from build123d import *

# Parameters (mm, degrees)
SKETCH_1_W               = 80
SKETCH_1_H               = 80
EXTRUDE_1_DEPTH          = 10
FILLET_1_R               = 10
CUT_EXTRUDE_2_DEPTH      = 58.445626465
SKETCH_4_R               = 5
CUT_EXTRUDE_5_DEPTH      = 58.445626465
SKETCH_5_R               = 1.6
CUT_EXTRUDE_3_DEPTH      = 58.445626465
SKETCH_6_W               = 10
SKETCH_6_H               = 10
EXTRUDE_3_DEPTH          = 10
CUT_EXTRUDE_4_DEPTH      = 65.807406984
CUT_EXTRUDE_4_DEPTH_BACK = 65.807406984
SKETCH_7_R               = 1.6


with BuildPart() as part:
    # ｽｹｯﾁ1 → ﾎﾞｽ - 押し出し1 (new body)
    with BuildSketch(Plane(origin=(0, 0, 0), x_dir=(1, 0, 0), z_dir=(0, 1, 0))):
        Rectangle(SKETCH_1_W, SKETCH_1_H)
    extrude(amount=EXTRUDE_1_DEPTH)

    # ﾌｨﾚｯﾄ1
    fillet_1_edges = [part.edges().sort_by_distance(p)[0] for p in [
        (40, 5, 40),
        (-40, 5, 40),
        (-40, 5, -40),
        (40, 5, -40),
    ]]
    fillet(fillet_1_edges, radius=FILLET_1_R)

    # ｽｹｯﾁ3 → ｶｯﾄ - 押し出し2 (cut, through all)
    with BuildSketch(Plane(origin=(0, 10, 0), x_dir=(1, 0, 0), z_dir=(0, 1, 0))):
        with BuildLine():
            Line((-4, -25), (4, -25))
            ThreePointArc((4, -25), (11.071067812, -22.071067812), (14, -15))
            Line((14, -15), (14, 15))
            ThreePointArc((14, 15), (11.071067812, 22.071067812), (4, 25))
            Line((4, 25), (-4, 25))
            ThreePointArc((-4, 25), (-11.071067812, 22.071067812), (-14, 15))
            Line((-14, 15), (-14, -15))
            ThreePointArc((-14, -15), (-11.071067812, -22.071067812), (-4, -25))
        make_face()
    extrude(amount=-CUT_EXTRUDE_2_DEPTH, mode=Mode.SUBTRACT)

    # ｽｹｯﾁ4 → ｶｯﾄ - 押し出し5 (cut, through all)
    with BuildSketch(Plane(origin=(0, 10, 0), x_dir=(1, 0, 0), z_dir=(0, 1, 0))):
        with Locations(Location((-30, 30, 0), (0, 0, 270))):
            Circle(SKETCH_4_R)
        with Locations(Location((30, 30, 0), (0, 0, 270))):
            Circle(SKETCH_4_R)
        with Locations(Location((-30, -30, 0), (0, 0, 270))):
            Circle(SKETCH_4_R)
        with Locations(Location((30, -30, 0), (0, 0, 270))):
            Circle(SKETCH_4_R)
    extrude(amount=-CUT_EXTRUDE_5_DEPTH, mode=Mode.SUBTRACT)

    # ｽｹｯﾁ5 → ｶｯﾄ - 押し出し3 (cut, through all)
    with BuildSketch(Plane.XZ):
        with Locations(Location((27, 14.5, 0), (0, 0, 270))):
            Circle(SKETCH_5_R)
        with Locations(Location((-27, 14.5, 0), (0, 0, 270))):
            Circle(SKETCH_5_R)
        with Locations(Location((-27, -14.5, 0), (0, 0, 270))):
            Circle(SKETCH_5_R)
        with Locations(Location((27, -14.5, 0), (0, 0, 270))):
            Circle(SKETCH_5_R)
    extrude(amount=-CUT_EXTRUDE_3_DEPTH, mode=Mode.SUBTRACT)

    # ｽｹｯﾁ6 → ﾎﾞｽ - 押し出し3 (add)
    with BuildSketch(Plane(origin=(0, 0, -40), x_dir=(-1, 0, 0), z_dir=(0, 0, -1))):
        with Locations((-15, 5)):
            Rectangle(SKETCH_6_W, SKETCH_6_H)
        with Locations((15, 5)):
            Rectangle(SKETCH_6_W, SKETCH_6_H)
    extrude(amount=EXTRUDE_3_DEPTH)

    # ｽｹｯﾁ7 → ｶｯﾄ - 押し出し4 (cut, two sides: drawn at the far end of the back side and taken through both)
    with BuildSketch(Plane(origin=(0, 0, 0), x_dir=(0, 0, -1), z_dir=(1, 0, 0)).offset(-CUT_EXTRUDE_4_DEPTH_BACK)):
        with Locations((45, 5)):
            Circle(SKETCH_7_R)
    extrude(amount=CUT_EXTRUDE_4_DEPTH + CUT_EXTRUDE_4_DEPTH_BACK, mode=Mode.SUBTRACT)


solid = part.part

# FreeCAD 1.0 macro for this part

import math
import FreeCAD as App
import Part
import Sketcher


def edges_at(feature, points):
    """Names of the edges that pass closest to the given points."""
    edges = feature.Shape.Edges
    near = lambda p: min(range(len(edges)), key=lambda i: edges[i].distToShape(Part.Vertex(*p))[0])
    return sorted({f"Edge{near(p) + 1}" for p in points})


def add_polygon(sketch, points):
    """Adds a closed chain of lines whose ends are joined by coincident constraints."""
    first, n = sketch.GeometryCount, len(points)
    for a, b in zip(points, points[1:] + points[:1]):
        sketch.addGeometry(Part.LineSegment(App.Vector(*a, 0), App.Vector(*b, 0)), False)
    for i in range(n):
        sketch.addConstraint(Sketcher.Constraint("Coincident", first + i, 2, first + (i + 1) % n, 1))

doc = App.newDocument("Part")
body = doc.addObject("PartDesign::Body", "Body")

sketch1 = body.newObject("Sketcher::SketchObject", "Sketch")
sketch1.AttachmentSupport = (doc.getObject("XZ_Plane"), [""])
sketch1.MapMode = "FlatFace"
add_polygon(sketch1, [(-40, -40), (-40, 40), (40, 40), (40, -40)])
sketch1.addConstraint([
    Sketcher.Constraint("Vertical", 0),
    Sketcher.Constraint("Horizontal", 1),
    Sketcher.Constraint("Vertical", 2),
    Sketcher.Constraint("Horizontal", 3),
    Sketcher.Constraint("Symmetric", 0, 2, 2, 2, -1, 1),
    Sketcher.Constraint("Equal", 3, 0),
    Sketcher.Constraint("DistanceX", 1, 1, 1, 2, 80.0),
])
pad1 = body.newObject("PartDesign::Pad", "Pad")
pad1.Profile = sketch1
pad1.Length = 10
pad1.Reversed = True
doc.recompute()

fillet = body.newObject("PartDesign::Fillet", "Fillet")
fillet.Base = (pad1, edges_at(pad1, [
    (40, 5, 40),
    (-40, 5, 40),
    (-40, 5, -40),
    (40, 5, -40),
]))
fillet.Radius = 10

sketch2 = body.newObject("Sketcher::SketchObject", "Sketch001")
sketch2.AttachmentSupport = (doc.getObject("XZ_Plane"), [""])
sketch2.MapMode = "FlatFace"
sketch2.AttachmentOffset = App.Placement(App.Vector(0, 0, -10), App.Rotation())
sketch2.addGeometry([
    Part.LineSegment(App.Vector(-4, 25, 0), App.Vector(4, 25, 0)),
    Part.ArcOfCircle(Part.Circle(App.Vector(4, 15, 0), App.Vector(0, 0, 1), 10), math.radians(0), math.radians(90)),
    Part.LineSegment(App.Vector(14, 15, 0), App.Vector(14, -15, 0)),
    Part.ArcOfCircle(Part.Circle(App.Vector(4, -15, 0), App.Vector(0, 0, 1), 10), math.radians(-90), math.radians(0)),
    Part.LineSegment(App.Vector(4, -25, 0), App.Vector(-4, -25, 0)),
    Part.ArcOfCircle(Part.Circle(App.Vector(-4, -15, 0), App.Vector(0, 0, 1), 10), math.radians(180), math.radians(270)),
    Part.LineSegment(App.Vector(-14, -15, 0), App.Vector(-14, 15, 0)),
    Part.ArcOfCircle(Part.Circle(App.Vector(-4, 15, 0), App.Vector(0, 0, 1), 10), math.radians(90), math.radians(180)),
], False)
sketch2.addConstraint([
    Sketcher.Constraint("Tangent", 0, 2, 1, 2),
    Sketcher.Constraint("Tangent", 1, 1, 2, 1),
    Sketcher.Constraint("Tangent", 2, 2, 3, 2),
    Sketcher.Constraint("Tangent", 3, 1, 4, 1),
    Sketcher.Constraint("Tangent", 4, 2, 5, 2),
    Sketcher.Constraint("Tangent", 5, 1, 6, 1),
    Sketcher.Constraint("Tangent", 6, 2, 7, 2),
    Sketcher.Constraint("Tangent", 7, 1, 0, 1),
    Sketcher.Constraint("Horizontal", 0),
    Sketcher.Constraint("Vertical", 2),
    Sketcher.Constraint("Horizontal", 4),
    Sketcher.Constraint("Vertical", 6),
    Sketcher.Constraint("Equal", 1, 3),
    Sketcher.Constraint("Equal", 3, 5),
    Sketcher.Constraint("Equal", 5, 7),
    Sketcher.Constraint("Symmetric", 1, 3, 5, 3, -1, 1),
    Sketcher.Constraint("Radius", 1, 10.0),
    Sketcher.Constraint("DistanceX", 0, 1, 0, 2, 8.0),
    Sketcher.Constraint("DistanceY", 2, 2, 2, 1, 30.0),
])
pocket1 = body.newObject("PartDesign::Pocket", "Pocket")
pocket1.Profile = sketch2
pocket1.Type = "ThroughAll"
pocket1.Reversed = True

sketch3 = body.newObject("Sketcher::SketchObject", "Sketch002")
sketch3.AttachmentSupport = (doc.getObject("XZ_Plane"), [""])
sketch3.MapMode = "FlatFace"
sketch3.AttachmentOffset = App.Placement(App.Vector(0, 0, -10), App.Rotation())
sketch3.addGeometry([
    Part.Circle(App.Vector(-30, -30, 0), App.Vector(0, 0, 1), 5),
    Part.Circle(App.Vector(30, -30, 0), App.Vector(0, 0, 1), 5),
    Part.Circle(App.Vector(-30, 30, 0), App.Vector(0, 0, 1), 5),
    Part.Circle(App.Vector(30, 30, 0), App.Vector(0, 0, 1), 5),
], False)
sketch3.addConstraint([
    Sketcher.Constraint("Equal", 0, 1),
    Sketcher.Constraint("Equal", 1, 2),
    Sketcher.Constraint("Equal", 2, 3),
    Sketcher.Constraint("Symmetric", 1, 3, 2, 3, -1, 1),
    Sketcher.Constraint("Symmetric", 0, 3, 3, 3, -1, 1),
    Sketcher.Constraint("Symmetric", 0, 3, 1, 3, -2),
    Sketcher.Constraint("Diameter", 0, 10.0),
    Sketcher.Constraint("DistanceX", 0, 3, -1, 1, 30.0),
    Sketcher.Constraint("DistanceY", 0, 3, -1, 1, 30.0),
])
pocket2 = body.newObject("PartDesign::Pocket", "Pocket001")
pocket2.Profile = sketch3
pocket2.Type = "ThroughAll"
pocket2.Reversed = True

sketch4 = body.newObject("Sketcher::SketchObject", "Sketch003")
sketch4.AttachmentSupport = (doc.getObject("XZ_Plane"), [""])
sketch4.MapMode = "FlatFace"
sketch4.addGeometry([
    Part.Circle(App.Vector(27, 14.5, 0), App.Vector(0, 0, 1), 1.6),
    Part.Circle(App.Vector(-27, 14.5, 0), App.Vector(0, 0, 1), 1.6),
    Part.Circle(App.Vector(-27, -14.5, 0), App.Vector(0, 0, 1), 1.6),
    Part.Circle(App.Vector(27, -14.5, 0), App.Vector(0, 0, 1), 1.6),
], False)
sketch4.addConstraint([
    Sketcher.Constraint("Equal", 0, 1),
    Sketcher.Constraint("Equal", 1, 2),
    Sketcher.Constraint("Equal", 2, 3),
    Sketcher.Constraint("Symmetric", 0, 3, 2, 3, -1, 1),
    Sketcher.Constraint("Symmetric", 1, 3, 3, 3, -1, 1),
    Sketcher.Constraint("Symmetric", 0, 3, 1, 3, -2),
    Sketcher.Constraint("Diameter", 0, 3.2),
    Sketcher.Constraint("DistanceX", -1, 1, 0, 3, 27.0),
    Sketcher.Constraint("DistanceY", 2, 3, 1, 3, 29.0),
])
pocket3 = body.newObject("PartDesign::Pocket", "Pocket002")
pocket3.Profile = sketch4
pocket3.Type = "ThroughAll"

sketch5 = body.newObject("Sketcher::SketchObject", "Sketch004")
sketch5.AttachmentSupport = (doc.getObject("XY_Plane"), [""])
sketch5.MapMode = "FlatFace"
sketch5.AttachmentOffset = App.Placement(App.Vector(0, 0, -40), App.Rotation())
add_polygon(sketch5, [(20, 10), (20, 0), (10, 0), (10, 10)])
add_polygon(sketch5, [(-10, 10), (-10, 0), (-20, 0), (-20, 10)])
sketch5.addConstraint([
    Sketcher.Constraint("Vertical", 0),
    Sketcher.Constraint("Horizontal", 1),
    Sketcher.Constraint("Vertical", 2),
    Sketcher.Constraint("Horizontal", 3),
    Sketcher.Constraint("Vertical", 4),
    Sketcher.Constraint("Horizontal", 5),
    Sketcher.Constraint("Vertical", 6),
    Sketcher.Constraint("Horizontal", 7),
    Sketcher.Constraint("Symmetric", 1, 2, 4, 2, -1, 1),
    Sketcher.Constraint("Symmetric", 0, 2, 5, 2, -2),
    Sketcher.Constraint("Horizontal", 3, 2, 6, 2),
    Sketcher.Constraint("Equal", 7, 0),
    Sketcher.Constraint("DistanceX", 1, 2, 1, 1, 10.0),
    Sketcher.Constraint("DistanceX", -1, 1, 0, 2, 20.0),
])
pad2 = body.newObject("PartDesign::Pad", "Pad001")
pad2.Profile = sketch5
pad2.Length = 10
pad2.Reversed = True

sketch6 = body.newObject("Sketcher::SketchObject", "Sketch005")
sketch6.AttachmentSupport = (doc.getObject("YZ_Plane"), [""])
sketch6.MapMode = "FlatFace"
sketch6.addGeometry(Part.Circle(App.Vector(5, -45, 0), App.Vector(0, 0, 1), 1.6), False)
sketch6.addConstraint([
    Sketcher.Constraint("Diameter", 0, 3.2),
    Sketcher.Constraint("DistanceX", -1, 1, 0, 3, 5.0),
    Sketcher.Constraint("DistanceY", 0, 3, -1, 1, 45.0),
])
pocket4 = body.newObject("PartDesign::Pocket", "Pocket003")
pocket4.Profile = sketch6
pocket4.Type = "ThroughAll"
pocket4.Midplane = True

doc.recompute()
